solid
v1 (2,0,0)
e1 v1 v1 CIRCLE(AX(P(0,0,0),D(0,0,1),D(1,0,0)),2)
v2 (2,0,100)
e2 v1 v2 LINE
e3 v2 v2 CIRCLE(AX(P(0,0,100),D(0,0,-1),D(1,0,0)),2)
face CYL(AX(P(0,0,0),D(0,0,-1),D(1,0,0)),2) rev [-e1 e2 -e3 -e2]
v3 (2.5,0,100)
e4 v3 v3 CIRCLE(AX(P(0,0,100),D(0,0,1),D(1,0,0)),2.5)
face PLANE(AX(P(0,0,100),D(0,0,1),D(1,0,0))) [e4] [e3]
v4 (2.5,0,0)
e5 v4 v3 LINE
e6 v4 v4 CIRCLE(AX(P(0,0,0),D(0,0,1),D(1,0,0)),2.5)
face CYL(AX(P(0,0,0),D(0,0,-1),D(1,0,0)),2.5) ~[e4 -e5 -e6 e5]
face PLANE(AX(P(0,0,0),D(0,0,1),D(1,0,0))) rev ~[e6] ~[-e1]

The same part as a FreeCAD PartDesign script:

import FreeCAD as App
import Part
import Sketcher

V = App.Vector

doc = App.newDocument("Part")
params = doc.addObject("Spreadsheet::Sheet", "Params")
for row, (alias, value) in enumerate([
    ("sketch1_diameter", "5 mm"),
    ("pad1_length", "100 mm"),
    ("sketch2_diameter", "4 mm"),
], start=1):
    params.set(f"A{row}", alias)
    params.set(f"B{row}", "=" + value)
    params.setAlias(f"B{row}", alias)

body = doc.addObject("PartDesign::Body", "Body")

sketch1 = body.newObject("Sketcher::SketchObject", "Sketch")
sketch1.AttachmentSupport = (doc.getObject("XY_Plane"), [""])
sketch1.MapMode = "FlatFace"
sketch1.addGeometry(Part.Circle(V(0, 0, 0), V(0, 0, 1), 2.5), False)
sketch1.addConstraint([
    Sketcher.Constraint("Coincident", 0, 3, -1, 1),
    Sketcher.Constraint("Diameter", 0, 5.0),
])
sketch1.setExpression("Constraints[1]", "Params.sketch1_diameter")
pad1 = body.newObject("PartDesign::Pad", "Pad")
pad1.Profile = sketch1
pad1.setExpression("Length", "Params.pad1_length")

sketch2 = body.newObject("Sketcher::SketchObject", "Sketch001")
sketch2.AttachmentSupport = (doc.getObject("XY_Plane"), [""])
sketch2.MapMode = "FlatFace"
sketch2.addGeometry(Part.Circle(V(0, 0, 0), V(0, 0, 1), 2), False)
sketch2.addConstraint([
    Sketcher.Constraint("Coincident", 0, 3, -1, 1),
    Sketcher.Constraint("Diameter", 0, 4.0),
])
sketch2.setExpression("Constraints[1]", "Params.sketch2_diameter")
pocket1 = body.newObject("PartDesign::Pocket", "Pocket")
pocket1.Profile = sketch2
pocket1.Type = "ThroughAll"
pocket1.Reversed = True

doc.recompute()
